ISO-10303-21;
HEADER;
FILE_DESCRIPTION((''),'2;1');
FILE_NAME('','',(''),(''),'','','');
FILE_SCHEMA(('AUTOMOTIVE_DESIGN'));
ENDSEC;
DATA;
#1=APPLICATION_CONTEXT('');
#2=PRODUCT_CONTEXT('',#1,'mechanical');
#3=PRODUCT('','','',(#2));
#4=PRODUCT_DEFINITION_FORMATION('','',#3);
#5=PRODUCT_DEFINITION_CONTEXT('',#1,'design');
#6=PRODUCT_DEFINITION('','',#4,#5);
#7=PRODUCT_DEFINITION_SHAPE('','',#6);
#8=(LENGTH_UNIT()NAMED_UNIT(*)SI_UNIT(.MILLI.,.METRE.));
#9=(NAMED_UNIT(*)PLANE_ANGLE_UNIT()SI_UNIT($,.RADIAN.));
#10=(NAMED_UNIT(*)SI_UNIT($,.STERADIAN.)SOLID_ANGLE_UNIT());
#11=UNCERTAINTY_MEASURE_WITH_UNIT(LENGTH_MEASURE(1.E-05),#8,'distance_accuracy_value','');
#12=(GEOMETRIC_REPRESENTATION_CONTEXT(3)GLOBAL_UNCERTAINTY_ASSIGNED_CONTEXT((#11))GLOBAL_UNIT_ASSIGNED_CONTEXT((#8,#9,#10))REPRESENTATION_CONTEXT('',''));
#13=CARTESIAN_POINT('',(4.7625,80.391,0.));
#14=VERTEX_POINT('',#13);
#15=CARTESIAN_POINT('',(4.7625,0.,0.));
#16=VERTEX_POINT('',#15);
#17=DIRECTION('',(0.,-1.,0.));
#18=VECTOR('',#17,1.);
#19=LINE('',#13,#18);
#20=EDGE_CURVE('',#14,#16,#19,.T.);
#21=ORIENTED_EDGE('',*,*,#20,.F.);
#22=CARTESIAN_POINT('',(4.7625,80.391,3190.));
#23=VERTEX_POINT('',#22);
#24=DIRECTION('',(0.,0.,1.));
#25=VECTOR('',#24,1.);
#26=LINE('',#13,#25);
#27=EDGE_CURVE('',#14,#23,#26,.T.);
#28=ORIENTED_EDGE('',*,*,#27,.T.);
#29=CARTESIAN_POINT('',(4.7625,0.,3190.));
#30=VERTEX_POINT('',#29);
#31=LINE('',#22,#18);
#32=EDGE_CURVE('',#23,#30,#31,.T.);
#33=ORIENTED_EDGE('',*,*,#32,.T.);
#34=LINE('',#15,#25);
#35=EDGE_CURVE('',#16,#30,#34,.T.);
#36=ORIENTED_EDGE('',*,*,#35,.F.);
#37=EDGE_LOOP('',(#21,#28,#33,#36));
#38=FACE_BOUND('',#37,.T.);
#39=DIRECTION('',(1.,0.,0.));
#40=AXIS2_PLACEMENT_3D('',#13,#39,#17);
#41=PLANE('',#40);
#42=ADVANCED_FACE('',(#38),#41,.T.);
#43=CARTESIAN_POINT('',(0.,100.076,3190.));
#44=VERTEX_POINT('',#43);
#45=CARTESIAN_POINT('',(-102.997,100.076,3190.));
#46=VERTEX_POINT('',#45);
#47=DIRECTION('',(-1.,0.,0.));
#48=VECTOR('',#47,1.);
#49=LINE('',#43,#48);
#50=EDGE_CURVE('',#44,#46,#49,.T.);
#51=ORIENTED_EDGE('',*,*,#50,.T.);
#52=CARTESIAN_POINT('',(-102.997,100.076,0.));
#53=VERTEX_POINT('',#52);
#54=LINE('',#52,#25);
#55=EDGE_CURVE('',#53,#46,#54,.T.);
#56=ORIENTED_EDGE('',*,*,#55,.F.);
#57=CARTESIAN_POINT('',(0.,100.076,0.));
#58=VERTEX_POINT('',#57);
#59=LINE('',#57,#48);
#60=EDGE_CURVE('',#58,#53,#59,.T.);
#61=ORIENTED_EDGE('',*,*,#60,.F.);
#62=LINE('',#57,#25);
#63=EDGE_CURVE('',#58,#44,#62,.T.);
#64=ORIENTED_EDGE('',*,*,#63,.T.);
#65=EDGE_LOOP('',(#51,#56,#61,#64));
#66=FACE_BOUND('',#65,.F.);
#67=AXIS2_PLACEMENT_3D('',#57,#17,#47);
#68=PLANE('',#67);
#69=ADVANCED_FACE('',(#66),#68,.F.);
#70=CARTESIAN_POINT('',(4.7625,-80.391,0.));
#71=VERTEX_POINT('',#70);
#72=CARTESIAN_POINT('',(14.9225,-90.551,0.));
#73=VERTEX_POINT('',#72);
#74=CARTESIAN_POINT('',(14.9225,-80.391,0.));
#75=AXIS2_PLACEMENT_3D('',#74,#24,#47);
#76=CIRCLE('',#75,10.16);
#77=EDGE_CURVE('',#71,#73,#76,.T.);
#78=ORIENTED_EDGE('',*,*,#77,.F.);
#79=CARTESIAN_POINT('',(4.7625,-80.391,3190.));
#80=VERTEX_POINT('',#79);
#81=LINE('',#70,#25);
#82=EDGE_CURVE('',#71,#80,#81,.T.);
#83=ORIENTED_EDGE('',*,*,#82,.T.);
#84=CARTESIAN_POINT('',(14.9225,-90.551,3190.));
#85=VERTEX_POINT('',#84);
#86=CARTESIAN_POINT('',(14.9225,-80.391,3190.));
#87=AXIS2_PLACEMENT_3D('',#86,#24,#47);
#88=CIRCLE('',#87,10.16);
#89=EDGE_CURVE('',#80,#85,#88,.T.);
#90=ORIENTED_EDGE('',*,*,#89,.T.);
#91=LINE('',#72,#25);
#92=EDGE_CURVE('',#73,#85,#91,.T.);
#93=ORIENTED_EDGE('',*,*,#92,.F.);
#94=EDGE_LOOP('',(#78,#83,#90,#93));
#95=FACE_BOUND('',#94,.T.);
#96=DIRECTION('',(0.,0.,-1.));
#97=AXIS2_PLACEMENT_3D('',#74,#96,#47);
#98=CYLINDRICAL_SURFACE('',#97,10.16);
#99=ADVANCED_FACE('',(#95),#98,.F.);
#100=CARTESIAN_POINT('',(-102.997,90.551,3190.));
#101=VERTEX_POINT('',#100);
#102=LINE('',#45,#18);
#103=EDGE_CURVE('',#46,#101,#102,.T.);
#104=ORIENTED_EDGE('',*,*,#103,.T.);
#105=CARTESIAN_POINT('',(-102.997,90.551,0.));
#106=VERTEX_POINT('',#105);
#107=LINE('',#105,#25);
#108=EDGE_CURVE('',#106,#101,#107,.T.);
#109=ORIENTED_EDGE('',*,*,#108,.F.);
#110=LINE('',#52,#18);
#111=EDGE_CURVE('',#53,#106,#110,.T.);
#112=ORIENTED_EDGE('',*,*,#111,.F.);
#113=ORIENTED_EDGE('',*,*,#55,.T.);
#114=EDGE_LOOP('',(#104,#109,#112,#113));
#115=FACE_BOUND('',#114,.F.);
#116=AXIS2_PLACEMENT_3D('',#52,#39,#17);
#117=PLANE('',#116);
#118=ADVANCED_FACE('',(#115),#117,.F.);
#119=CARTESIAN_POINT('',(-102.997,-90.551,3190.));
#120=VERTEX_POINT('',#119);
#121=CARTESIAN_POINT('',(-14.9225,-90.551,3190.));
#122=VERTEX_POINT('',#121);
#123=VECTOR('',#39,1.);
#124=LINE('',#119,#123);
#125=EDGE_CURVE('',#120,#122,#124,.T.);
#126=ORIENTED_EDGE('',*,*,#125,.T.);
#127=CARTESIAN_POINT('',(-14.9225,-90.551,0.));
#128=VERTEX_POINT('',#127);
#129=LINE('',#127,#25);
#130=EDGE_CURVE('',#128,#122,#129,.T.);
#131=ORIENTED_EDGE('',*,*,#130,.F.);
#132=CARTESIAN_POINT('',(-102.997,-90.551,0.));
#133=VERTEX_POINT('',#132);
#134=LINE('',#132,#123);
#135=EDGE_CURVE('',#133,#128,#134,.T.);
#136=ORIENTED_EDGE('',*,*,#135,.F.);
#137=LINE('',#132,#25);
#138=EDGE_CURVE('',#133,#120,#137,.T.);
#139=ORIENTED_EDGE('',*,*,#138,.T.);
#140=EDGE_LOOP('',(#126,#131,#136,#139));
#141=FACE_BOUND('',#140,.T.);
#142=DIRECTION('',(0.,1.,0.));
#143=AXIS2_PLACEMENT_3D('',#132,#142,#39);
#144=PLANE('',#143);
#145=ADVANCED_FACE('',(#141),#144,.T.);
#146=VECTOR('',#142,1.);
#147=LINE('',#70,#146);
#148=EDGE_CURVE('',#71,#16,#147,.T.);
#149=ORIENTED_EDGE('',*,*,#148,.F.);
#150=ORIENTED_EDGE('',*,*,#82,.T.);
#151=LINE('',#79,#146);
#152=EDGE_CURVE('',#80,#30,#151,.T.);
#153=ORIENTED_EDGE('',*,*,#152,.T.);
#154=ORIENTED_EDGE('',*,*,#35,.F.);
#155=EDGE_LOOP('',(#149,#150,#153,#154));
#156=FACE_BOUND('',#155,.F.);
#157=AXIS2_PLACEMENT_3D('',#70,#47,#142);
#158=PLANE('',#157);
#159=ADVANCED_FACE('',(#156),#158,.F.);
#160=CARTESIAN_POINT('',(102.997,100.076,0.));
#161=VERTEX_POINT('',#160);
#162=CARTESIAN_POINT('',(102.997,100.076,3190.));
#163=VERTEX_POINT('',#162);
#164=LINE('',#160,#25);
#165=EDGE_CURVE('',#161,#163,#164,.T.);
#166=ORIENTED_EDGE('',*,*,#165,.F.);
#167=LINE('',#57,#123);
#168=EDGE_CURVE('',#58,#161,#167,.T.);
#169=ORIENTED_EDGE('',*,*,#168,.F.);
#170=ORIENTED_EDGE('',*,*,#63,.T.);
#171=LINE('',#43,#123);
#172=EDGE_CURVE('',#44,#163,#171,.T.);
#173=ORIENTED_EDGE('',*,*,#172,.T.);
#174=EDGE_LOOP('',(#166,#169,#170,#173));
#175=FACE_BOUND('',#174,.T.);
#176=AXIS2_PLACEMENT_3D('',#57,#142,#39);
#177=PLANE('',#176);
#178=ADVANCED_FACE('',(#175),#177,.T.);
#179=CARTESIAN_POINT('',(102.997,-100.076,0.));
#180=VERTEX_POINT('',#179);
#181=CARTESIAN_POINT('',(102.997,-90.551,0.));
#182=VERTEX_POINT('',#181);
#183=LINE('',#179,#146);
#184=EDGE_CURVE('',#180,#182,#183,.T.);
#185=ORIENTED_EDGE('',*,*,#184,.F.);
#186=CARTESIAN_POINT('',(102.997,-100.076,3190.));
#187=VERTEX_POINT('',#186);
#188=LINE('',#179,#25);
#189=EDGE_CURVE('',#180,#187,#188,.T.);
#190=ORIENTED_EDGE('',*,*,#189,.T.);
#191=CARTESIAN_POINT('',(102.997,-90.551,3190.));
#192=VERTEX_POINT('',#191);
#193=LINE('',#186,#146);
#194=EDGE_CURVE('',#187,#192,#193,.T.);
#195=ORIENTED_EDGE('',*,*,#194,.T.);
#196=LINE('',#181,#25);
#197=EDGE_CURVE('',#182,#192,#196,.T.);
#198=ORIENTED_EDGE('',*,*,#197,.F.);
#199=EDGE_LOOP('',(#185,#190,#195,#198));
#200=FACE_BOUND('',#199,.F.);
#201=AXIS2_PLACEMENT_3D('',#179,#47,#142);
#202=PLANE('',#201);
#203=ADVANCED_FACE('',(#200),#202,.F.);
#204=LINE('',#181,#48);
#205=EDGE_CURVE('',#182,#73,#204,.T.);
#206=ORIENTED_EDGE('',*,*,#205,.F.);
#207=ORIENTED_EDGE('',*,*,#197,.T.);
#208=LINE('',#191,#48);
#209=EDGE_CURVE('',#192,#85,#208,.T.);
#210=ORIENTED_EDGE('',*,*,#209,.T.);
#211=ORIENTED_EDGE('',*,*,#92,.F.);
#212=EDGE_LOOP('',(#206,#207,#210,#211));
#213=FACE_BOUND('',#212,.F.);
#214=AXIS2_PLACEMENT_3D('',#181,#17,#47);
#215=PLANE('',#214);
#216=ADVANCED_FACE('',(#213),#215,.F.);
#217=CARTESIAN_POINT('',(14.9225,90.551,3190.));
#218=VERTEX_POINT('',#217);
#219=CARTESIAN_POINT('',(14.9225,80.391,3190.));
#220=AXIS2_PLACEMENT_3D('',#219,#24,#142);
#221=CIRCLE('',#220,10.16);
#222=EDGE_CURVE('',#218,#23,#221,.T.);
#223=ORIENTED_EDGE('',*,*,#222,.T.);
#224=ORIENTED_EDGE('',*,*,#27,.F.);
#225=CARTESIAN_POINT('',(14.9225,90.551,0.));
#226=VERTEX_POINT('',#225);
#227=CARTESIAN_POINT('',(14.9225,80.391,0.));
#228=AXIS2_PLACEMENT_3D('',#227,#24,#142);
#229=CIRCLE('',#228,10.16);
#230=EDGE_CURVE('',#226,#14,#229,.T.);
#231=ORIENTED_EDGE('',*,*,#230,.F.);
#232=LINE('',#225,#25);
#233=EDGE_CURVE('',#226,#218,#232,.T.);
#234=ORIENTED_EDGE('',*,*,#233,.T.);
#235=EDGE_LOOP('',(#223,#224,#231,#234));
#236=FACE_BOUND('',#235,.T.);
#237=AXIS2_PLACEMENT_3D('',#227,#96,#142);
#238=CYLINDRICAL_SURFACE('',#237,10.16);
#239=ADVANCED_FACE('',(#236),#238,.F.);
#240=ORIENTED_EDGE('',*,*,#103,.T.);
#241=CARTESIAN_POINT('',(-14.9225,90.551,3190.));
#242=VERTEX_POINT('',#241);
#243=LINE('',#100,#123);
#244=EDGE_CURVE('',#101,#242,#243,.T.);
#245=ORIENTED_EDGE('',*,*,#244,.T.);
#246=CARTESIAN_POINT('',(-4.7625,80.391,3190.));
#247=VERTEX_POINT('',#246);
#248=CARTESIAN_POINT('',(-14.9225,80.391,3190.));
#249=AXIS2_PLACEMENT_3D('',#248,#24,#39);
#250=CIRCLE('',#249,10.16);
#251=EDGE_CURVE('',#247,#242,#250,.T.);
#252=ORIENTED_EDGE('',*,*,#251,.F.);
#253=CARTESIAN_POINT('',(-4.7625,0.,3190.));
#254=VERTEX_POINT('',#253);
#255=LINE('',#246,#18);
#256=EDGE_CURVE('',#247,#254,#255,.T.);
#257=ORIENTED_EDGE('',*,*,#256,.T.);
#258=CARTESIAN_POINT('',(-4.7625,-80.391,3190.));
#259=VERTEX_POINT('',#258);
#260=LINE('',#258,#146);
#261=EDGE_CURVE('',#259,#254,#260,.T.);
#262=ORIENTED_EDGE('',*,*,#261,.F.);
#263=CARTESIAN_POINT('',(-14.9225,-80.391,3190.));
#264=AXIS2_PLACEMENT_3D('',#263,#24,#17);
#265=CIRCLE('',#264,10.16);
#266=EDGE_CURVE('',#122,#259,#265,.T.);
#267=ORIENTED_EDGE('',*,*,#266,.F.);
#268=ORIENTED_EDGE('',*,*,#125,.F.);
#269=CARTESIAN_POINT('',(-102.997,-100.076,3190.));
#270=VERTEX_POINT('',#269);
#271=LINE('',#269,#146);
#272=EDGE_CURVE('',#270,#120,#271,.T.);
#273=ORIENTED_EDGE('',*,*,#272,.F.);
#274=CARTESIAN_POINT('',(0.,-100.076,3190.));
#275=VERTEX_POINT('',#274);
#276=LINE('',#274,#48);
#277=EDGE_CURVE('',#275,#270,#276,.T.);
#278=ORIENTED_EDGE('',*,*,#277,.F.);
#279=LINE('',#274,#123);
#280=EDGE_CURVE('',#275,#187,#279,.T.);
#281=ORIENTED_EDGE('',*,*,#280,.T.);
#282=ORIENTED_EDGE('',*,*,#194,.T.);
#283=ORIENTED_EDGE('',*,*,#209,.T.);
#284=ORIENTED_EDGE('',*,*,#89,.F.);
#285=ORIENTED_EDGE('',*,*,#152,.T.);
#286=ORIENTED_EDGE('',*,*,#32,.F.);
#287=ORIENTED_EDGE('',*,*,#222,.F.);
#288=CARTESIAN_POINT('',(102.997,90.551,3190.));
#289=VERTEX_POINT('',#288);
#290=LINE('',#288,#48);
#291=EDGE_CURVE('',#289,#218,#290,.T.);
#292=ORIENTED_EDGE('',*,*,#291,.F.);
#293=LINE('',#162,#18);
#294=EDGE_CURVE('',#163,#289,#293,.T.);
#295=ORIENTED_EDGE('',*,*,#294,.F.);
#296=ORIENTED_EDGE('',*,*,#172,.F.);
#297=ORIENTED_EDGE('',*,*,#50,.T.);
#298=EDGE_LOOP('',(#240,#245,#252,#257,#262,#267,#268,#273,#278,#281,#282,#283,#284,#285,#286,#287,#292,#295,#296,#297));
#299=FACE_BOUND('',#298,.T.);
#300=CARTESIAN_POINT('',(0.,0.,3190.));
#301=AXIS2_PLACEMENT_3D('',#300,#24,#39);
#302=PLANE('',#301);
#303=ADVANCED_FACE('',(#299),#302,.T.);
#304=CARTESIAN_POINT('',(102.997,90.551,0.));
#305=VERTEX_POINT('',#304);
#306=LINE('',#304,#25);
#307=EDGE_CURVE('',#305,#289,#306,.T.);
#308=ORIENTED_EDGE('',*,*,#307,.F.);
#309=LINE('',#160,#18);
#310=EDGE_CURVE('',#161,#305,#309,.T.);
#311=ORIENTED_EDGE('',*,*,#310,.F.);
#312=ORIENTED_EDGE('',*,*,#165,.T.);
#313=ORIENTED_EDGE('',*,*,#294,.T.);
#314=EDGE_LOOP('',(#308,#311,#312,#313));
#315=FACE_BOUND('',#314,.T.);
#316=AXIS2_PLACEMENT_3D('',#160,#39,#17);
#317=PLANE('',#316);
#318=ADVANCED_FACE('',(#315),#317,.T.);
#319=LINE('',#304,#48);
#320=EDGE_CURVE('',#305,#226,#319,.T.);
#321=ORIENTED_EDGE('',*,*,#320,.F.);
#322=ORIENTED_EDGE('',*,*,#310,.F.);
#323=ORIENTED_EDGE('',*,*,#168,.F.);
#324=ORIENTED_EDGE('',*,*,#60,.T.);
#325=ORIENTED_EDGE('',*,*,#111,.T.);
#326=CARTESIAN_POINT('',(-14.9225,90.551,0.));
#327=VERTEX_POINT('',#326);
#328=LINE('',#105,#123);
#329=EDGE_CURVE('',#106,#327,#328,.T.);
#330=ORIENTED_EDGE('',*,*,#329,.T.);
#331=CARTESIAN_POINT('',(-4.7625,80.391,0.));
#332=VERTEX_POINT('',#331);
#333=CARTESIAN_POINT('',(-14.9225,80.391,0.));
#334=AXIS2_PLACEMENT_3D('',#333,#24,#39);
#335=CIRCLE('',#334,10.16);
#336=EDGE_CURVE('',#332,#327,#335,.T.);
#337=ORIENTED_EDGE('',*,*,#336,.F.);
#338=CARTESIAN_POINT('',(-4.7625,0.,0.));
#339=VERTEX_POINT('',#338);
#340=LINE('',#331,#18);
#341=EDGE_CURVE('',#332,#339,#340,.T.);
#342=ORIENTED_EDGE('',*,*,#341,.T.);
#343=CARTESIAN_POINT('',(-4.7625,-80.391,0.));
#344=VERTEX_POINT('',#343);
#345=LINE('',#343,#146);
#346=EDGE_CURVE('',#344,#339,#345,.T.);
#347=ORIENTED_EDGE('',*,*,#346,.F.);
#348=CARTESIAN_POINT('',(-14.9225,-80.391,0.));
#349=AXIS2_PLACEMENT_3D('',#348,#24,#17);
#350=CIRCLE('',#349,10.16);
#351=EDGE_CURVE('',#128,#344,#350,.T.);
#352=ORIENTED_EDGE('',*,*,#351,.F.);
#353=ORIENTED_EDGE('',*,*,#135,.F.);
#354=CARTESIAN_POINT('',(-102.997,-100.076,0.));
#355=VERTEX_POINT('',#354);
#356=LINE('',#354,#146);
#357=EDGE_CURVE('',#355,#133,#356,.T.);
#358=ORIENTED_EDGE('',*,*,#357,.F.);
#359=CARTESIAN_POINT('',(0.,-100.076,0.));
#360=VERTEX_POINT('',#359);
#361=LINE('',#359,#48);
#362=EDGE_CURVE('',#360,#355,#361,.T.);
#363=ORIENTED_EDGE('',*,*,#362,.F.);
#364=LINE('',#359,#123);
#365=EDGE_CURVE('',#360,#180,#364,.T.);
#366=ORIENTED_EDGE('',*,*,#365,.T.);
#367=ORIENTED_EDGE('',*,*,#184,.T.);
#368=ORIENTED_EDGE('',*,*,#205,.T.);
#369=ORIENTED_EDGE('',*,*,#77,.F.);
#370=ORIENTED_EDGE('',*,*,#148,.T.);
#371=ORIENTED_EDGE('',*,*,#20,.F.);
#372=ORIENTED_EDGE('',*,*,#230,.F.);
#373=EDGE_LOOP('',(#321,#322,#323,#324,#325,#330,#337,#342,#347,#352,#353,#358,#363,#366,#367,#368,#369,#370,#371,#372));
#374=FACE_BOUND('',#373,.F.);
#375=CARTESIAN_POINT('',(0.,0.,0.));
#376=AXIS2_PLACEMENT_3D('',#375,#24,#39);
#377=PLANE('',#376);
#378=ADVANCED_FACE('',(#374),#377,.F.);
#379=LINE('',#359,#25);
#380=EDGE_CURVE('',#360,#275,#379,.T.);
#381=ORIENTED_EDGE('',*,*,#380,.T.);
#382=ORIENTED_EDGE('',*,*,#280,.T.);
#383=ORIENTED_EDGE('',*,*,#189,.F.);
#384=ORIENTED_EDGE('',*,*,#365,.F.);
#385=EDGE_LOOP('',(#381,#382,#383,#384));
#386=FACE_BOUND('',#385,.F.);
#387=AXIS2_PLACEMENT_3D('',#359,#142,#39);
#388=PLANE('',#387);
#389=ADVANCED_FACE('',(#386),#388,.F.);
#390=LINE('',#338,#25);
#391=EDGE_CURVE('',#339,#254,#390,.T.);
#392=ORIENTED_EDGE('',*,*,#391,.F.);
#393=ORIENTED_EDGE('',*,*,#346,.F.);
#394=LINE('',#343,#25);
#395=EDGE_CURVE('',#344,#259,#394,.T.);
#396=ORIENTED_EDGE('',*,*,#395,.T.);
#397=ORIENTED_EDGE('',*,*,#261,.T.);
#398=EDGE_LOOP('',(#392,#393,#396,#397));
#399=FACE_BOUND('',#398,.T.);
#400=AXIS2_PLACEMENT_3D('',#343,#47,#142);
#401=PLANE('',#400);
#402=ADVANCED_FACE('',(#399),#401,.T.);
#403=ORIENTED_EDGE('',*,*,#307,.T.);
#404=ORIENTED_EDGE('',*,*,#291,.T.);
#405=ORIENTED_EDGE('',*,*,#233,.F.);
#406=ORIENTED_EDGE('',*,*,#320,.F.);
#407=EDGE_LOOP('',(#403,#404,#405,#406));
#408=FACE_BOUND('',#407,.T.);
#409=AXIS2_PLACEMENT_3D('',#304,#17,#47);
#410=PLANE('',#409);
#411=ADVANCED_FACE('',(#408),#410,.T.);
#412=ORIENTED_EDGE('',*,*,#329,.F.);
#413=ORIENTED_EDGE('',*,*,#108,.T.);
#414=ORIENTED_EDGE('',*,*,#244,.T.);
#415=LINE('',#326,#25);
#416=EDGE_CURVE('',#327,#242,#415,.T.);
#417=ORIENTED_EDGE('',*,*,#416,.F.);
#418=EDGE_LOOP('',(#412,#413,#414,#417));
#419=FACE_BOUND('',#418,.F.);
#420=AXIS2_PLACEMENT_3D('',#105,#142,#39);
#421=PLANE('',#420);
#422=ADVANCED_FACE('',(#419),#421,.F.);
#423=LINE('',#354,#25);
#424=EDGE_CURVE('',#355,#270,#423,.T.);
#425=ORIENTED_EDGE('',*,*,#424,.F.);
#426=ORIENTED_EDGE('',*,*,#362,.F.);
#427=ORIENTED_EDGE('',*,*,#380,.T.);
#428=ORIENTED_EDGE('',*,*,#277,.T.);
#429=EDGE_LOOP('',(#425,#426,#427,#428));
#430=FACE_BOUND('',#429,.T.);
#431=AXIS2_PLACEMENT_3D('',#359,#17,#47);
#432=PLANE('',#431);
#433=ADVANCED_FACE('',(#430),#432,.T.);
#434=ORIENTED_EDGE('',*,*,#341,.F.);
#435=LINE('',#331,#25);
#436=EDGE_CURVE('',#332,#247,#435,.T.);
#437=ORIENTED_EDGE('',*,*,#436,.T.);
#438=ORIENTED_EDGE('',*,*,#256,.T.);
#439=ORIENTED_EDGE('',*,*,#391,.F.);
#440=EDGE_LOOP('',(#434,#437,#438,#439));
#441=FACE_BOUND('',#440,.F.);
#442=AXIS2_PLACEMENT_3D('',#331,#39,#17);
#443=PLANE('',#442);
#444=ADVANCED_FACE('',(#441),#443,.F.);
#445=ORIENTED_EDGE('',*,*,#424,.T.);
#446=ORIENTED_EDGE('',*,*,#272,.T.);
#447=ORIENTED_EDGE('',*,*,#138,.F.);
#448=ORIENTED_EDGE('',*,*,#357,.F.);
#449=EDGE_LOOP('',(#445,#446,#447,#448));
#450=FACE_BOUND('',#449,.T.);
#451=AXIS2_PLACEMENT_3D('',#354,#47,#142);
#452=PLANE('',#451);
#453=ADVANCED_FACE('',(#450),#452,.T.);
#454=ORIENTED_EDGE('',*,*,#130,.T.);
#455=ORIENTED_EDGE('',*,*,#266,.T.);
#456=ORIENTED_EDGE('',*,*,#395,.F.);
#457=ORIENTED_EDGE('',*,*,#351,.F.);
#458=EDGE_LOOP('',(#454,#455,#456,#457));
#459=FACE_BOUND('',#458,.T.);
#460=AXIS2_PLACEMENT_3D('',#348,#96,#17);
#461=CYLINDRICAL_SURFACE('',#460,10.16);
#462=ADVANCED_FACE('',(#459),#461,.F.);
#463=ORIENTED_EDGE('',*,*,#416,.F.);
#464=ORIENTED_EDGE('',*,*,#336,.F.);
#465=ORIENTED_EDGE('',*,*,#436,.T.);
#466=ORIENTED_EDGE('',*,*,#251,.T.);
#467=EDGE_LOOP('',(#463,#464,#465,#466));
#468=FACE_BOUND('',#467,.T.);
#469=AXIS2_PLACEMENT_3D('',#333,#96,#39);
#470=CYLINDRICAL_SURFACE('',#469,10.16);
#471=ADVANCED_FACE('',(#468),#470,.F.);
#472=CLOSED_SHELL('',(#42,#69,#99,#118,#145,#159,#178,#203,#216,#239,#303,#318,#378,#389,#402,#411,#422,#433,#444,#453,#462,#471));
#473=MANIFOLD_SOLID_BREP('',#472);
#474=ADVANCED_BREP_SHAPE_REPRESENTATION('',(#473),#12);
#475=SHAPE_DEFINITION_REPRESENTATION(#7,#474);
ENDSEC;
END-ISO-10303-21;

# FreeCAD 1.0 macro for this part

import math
import FreeCAD as App
import Part
import Sketcher
from FreeCAD import Vector
Q = App.Units.Quantity

doc = App.newDocument("Part")
params = doc.addObject("Spreadsheet::Sheet", "Params")
for row, (alias, value) in enumerate([
    ("sketch1_radius", "0.4 in"),
    ("sketch1_height", "0.375 in"),
    ("pad1_length", "3190 mm"),
], start=1):
    params.set(f"A{row}", alias)
    params.set(f"B{row}", "=" + value)
    params.setAlias(f"B{row}", alias)

body = doc.addObject("PartDesign::Body", "Body")

# Sketch on XY plane
sketch1 = doc.addObject("Sketcher::SketchObject", "Sketch")
body.addObject(sketch1)
sketch1.AttachmentSupport = (doc.XY_Plane, [""])
sketch1.MapMode = "FlatFace"
sketch1.addGeometry([
    Part.LineSegment(Vector(-103, -91, 0), Vector(-103, -100, 0)),  # 0
    Part.LineSegment(Vector(-103, -100, 0), Vector(103, -100, 0)),  # 1
    Part.LineSegment(Vector(103, -100, 0), Vector(103, -91, 0)),  # 2
    Part.LineSegment(Vector(103, -91, 0), Vector(15, -91, 0)),  # 3
    Part.ArcOfCircle(Part.Circle(Vector(15, -80, 0), Vector(0, 0, 1), 10), math.radians(180), math.radians(270)),  # 4
    Part.LineSegment(Vector(5, -80, 0), Vector(5, 80, 0)),  # 5
    Part.ArcOfCircle(Part.Circle(Vector(15, 80, 0), Vector(0, 0, 1), 10), math.radians(90), math.radians(180)),  # 6
    Part.LineSegment(Vector(15, 91, 0), Vector(103, 91, 0)),  # 7
    Part.LineSegment(Vector(103, 91, 0), Vector(103, 100, 0)),  # 8
    Part.LineSegment(Vector(103, 100, 0), Vector(-103, 100, 0)),  # 9
    Part.LineSegment(Vector(-103, 100, 0), Vector(-103, 91, 0)),  # 10
    Part.LineSegment(Vector(-103, 91, 0), Vector(-15, 91, 0)),  # 11
    Part.ArcOfCircle(Part.Circle(Vector(-15, 80, 0), Vector(0, 0, 1), 10), math.radians(0), math.radians(90)),  # 12
    Part.LineSegment(Vector(-5, 80, 0), Vector(-5, -80, 0)),  # 13
    Part.ArcOfCircle(Part.Circle(Vector(-15, -80, 0), Vector(0, 0, 1), 10), math.radians(-90), math.radians(0)),  # 14
    Part.LineSegment(Vector(-15, -91, 0), Vector(-103, -91, 0)),  # 15
], False)
sketch1.addConstraint([
    Sketcher.Constraint("Coincident", 0, 2, 1, 1),
    Sketcher.Constraint("Coincident", 1, 2, 2, 1),
    Sketcher.Constraint("Coincident", 2, 2, 3, 1),
    Sketcher.Constraint("Tangent", 3, 2, 4, 2),
    Sketcher.Constraint("Tangent", 4, 1, 5, 1),
    Sketcher.Constraint("Tangent", 5, 2, 6, 2),
    Sketcher.Constraint("Tangent", 6, 1, 7, 1),
    Sketcher.Constraint("Coincident", 7, 2, 8, 1),
    Sketcher.Constraint("Coincident", 8, 2, 9, 1),
    Sketcher.Constraint("Coincident", 9, 2, 10, 1),
    Sketcher.Constraint("Coincident", 10, 2, 11, 1),
    Sketcher.Constraint("Tangent", 11, 2, 12, 2),
    Sketcher.Constraint("Tangent", 12, 1, 13, 1),
    Sketcher.Constraint("Tangent", 13, 2, 14, 2),
    Sketcher.Constraint("Tangent", 14, 1, 15, 1),
    Sketcher.Constraint("Coincident", 15, 2, 0, 1),
    Sketcher.Constraint("Vertical", 0),
    Sketcher.Constraint("Horizontal", 1),
    Sketcher.Constraint("Vertical", 2),
    Sketcher.Constraint("Horizontal", 3),
    Sketcher.Constraint("Vertical", 5),
    Sketcher.Constraint("Horizontal", 7),
    Sketcher.Constraint("Vertical", 8),
    Sketcher.Constraint("Horizontal", 9),
    Sketcher.Constraint("Vertical", 10),
    Sketcher.Constraint("Horizontal", 11),
    Sketcher.Constraint("Vertical", 13),
    Sketcher.Constraint("Horizontal", 15),
    Sketcher.Constraint("Equal", 4, 6),
    Sketcher.Constraint("Equal", 6, 12),
    Sketcher.Constraint("Equal", 12, 14),
    Sketcher.Constraint("Symmetric", 4, 3, 12, 3, -1, 1),
    Sketcher.Constraint("Symmetric", 0, 2, 8, 2, -1, 1),
    Sketcher.Constraint("Symmetric", 7, 2, 10, 2, -2),
    Sketcher.Constraint("Symmetric", 2, 2, 15, 2, -2),
    Sketcher.Constraint("Radius", 4, Q("0.4 in")),
    Sketcher.Constraint("DistanceY", 0, 2, 0, 1, Q("0.375 in")),
    Sketcher.Constraint("DistanceY", 0, 2, -1, 1, Q("3.94 in")),
    Sketcher.Constraint("DistanceX", 0, 2, -1, 1, Q("4.055 in")),
    Sketcher.Constraint("DistanceX", -1, 1, 4, 1, Q("0.1875 in")),
])
sketch1.setExpression("Constraints[35]", "Params.sketch1_radius")
sketch1.setExpression("Constraints[36]", "Params.sketch1_height")
pad1 = doc.addObject("PartDesign::Pad", "Pad")
body.addObject(pad1)
pad1.Profile = sketch1
pad1.setExpression("Length", "Params.pad1_length")

doc.recompute()
